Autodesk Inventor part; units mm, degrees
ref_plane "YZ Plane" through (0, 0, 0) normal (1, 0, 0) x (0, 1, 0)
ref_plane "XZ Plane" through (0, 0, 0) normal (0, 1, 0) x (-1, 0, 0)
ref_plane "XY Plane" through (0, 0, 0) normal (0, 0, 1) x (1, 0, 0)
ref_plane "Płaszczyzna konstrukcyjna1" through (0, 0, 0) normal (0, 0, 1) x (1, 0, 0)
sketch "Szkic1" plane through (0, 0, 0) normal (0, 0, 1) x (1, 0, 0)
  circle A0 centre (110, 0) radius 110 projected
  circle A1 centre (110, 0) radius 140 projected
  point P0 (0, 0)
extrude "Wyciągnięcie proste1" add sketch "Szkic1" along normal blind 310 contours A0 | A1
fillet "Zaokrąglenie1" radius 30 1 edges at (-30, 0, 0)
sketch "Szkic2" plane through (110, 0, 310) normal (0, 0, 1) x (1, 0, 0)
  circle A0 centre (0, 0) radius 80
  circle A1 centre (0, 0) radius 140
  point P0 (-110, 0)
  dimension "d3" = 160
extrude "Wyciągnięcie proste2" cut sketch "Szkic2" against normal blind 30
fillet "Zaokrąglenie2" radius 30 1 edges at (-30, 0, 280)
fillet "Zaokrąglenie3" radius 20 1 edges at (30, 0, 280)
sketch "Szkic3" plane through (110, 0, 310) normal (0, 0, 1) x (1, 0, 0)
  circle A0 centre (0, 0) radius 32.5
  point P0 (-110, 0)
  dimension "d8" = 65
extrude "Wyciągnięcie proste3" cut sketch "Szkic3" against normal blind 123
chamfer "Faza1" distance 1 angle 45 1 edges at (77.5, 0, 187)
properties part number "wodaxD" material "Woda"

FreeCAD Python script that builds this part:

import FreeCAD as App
import Part
import Sketcher

V = App.Vector
Q = App.Units.Quantity


def edges_at(feature, points):
    """Names of the edges that pass closest to the given points."""
    edges = feature.Shape.Edges
    near = lambda p: min(range(len(edges)), key=lambda i: edges[i].distToShape(Part.Vertex(*p))[0])
    return sorted({f"Edge{near(p) + 1}" for p in points})

doc = App.newDocument("Part")
params = doc.addObject("Spreadsheet::Sheet", "Params")
for row, (alias, value) in enumerate([
    ("sketch1_diameter", "280 mm"),
    ("pad1_length", "310 mm"),
    ("fillet_radius", "30 mm"),
    ("sketch2_diameter", "160 mm"),
    ("sketch2_diameter2", "280 mm"),
    ("pocket1_length", "30 mm"),
    ("fillet2_radius", "30 mm"),
    ("fillet3_radius", "20 mm"),
    ("sketch3_diameter", "65 mm"),
    ("pocket2_length", "123 mm"),
    ("chamfer_size", "1 mm"),
], start=1):
    params.set(f"A{row}", alias)
    params.set(f"B{row}", "=" + value)
    params.setAlias(f"B{row}", alias)

body = doc.addObject("PartDesign::Body", "Body")

sketch1 = body.newObject("Sketcher::SketchObject", "Sketch")
sketch1.AttachmentSupport = (doc.getObject("XY_Plane"), [""])
sketch1.MapMode = "FlatFace"
sketch1.addGeometry(Part.Circle(V(110, 0, 0), V(0, 0, 1), 140), False)
sketch1.addConstraint([
    Sketcher.Constraint("PointOnObject", 0, 3, -1),
    Sketcher.Constraint("Diameter", 0, Q("280 mm")),
    Sketcher.Constraint("DistanceX", -1, 1, 0, 3, Q("110 mm")),
])
sketch1.setExpression("Constraints[1]", "Params.sketch1_diameter")
pad1 = body.newObject("PartDesign::Pad", "Pad")
pad1.Profile = sketch1
pad1.setExpression("Length", "Params.pad1_length")
doc.recompute()

fillet = body.newObject("PartDesign::Fillet", "Fillet")
fillet.Base = (pad1, edges_at(pad1, [(-30, 0, 0)]))
fillet.setExpression("Radius", "Params.fillet_radius")

sketch2 = body.newObject("Sketcher::SketchObject", "Sketch001")
sketch2.AttachmentSupport = (doc.getObject("XY_Plane"), [""])
sketch2.MapMode = "FlatFace"
sketch2.AttachmentOffset = App.Placement(V(0, 0, 310), App.Rotation())
sketch2.addGeometry([
    Part.Circle(V(110, 0, 0), V(0, 0, 1), 140),
    Part.Circle(V(110, 0, 0), V(0, 0, 1), 80),
], False)
sketch2.addConstraint([
    Sketcher.Constraint("Coincident", 1, 3, 0, 3),
    Sketcher.Constraint("PointOnObject", 0, 3, -1),
    Sketcher.Constraint("Diameter", 1, Q("160 mm")),
    Sketcher.Constraint("Diameter", 0, Q("280 mm")),
    Sketcher.Constraint("DistanceX", -1, 1, 0, 3, Q("110 mm")),
])
sketch2.setExpression("Constraints[2]", "Params.sketch2_diameter")
sketch2.setExpression("Constraints[3]", "Params.sketch2_diameter2")
pocket1 = body.newObject("PartDesign::Pocket", "Pocket")
pocket1.Profile = sketch2
pocket1.setExpression("Length", "Params.pocket1_length")
doc.recompute()

fillet2 = body.newObject("PartDesign::Fillet", "Fillet001")
fillet2.Base = (pocket1, edges_at(pocket1, [(-30, 0, 280)]))
fillet2.setExpression("Radius", "Params.fillet2_radius")
doc.recompute()

fillet3 = body.newObject("PartDesign::Fillet", "Fillet002")
fillet3.Base = (fillet2, edges_at(fillet2, [(30, 0, 280)]))
fillet3.setExpression("Radius", "Params.fillet3_radius")

sketch3 = body.newObject("Sketcher::SketchObject", "Sketch002")
sketch3.AttachmentSupport = (doc.getObject("XY_Plane"), [""])
sketch3.MapMode = "FlatFace"
sketch3.AttachmentOffset = App.Placement(V(0, 0, 310), App.Rotation())
sketch3.addGeometry(Part.Circle(V(110, 0, 0), V(0, 0, 1), 32), False)
sketch3.addConstraint([
    Sketcher.Constraint("PointOnObject", 0, 3, -1),
    Sketcher.Constraint("Diameter", 0, Q("65 mm")),
    Sketcher.Constraint("DistanceX", -1, 1, 0, 3, Q("110 mm")),
])
sketch3.setExpression("Constraints[1]", "Params.sketch3_diameter")
pocket2 = body.newObject("PartDesign::Pocket", "Pocket001")
pocket2.Profile = sketch3
pocket2.setExpression("Length", "Params.pocket2_length")
doc.recompute()

chamfer = body.newObject("PartDesign::Chamfer", "Chamfer")
chamfer.Base = (pocket2, edges_at(pocket2, [(77.5, 0, 187)]))
chamfer.setExpression("Size", "Params.chamfer_size")

doc.recompute()
